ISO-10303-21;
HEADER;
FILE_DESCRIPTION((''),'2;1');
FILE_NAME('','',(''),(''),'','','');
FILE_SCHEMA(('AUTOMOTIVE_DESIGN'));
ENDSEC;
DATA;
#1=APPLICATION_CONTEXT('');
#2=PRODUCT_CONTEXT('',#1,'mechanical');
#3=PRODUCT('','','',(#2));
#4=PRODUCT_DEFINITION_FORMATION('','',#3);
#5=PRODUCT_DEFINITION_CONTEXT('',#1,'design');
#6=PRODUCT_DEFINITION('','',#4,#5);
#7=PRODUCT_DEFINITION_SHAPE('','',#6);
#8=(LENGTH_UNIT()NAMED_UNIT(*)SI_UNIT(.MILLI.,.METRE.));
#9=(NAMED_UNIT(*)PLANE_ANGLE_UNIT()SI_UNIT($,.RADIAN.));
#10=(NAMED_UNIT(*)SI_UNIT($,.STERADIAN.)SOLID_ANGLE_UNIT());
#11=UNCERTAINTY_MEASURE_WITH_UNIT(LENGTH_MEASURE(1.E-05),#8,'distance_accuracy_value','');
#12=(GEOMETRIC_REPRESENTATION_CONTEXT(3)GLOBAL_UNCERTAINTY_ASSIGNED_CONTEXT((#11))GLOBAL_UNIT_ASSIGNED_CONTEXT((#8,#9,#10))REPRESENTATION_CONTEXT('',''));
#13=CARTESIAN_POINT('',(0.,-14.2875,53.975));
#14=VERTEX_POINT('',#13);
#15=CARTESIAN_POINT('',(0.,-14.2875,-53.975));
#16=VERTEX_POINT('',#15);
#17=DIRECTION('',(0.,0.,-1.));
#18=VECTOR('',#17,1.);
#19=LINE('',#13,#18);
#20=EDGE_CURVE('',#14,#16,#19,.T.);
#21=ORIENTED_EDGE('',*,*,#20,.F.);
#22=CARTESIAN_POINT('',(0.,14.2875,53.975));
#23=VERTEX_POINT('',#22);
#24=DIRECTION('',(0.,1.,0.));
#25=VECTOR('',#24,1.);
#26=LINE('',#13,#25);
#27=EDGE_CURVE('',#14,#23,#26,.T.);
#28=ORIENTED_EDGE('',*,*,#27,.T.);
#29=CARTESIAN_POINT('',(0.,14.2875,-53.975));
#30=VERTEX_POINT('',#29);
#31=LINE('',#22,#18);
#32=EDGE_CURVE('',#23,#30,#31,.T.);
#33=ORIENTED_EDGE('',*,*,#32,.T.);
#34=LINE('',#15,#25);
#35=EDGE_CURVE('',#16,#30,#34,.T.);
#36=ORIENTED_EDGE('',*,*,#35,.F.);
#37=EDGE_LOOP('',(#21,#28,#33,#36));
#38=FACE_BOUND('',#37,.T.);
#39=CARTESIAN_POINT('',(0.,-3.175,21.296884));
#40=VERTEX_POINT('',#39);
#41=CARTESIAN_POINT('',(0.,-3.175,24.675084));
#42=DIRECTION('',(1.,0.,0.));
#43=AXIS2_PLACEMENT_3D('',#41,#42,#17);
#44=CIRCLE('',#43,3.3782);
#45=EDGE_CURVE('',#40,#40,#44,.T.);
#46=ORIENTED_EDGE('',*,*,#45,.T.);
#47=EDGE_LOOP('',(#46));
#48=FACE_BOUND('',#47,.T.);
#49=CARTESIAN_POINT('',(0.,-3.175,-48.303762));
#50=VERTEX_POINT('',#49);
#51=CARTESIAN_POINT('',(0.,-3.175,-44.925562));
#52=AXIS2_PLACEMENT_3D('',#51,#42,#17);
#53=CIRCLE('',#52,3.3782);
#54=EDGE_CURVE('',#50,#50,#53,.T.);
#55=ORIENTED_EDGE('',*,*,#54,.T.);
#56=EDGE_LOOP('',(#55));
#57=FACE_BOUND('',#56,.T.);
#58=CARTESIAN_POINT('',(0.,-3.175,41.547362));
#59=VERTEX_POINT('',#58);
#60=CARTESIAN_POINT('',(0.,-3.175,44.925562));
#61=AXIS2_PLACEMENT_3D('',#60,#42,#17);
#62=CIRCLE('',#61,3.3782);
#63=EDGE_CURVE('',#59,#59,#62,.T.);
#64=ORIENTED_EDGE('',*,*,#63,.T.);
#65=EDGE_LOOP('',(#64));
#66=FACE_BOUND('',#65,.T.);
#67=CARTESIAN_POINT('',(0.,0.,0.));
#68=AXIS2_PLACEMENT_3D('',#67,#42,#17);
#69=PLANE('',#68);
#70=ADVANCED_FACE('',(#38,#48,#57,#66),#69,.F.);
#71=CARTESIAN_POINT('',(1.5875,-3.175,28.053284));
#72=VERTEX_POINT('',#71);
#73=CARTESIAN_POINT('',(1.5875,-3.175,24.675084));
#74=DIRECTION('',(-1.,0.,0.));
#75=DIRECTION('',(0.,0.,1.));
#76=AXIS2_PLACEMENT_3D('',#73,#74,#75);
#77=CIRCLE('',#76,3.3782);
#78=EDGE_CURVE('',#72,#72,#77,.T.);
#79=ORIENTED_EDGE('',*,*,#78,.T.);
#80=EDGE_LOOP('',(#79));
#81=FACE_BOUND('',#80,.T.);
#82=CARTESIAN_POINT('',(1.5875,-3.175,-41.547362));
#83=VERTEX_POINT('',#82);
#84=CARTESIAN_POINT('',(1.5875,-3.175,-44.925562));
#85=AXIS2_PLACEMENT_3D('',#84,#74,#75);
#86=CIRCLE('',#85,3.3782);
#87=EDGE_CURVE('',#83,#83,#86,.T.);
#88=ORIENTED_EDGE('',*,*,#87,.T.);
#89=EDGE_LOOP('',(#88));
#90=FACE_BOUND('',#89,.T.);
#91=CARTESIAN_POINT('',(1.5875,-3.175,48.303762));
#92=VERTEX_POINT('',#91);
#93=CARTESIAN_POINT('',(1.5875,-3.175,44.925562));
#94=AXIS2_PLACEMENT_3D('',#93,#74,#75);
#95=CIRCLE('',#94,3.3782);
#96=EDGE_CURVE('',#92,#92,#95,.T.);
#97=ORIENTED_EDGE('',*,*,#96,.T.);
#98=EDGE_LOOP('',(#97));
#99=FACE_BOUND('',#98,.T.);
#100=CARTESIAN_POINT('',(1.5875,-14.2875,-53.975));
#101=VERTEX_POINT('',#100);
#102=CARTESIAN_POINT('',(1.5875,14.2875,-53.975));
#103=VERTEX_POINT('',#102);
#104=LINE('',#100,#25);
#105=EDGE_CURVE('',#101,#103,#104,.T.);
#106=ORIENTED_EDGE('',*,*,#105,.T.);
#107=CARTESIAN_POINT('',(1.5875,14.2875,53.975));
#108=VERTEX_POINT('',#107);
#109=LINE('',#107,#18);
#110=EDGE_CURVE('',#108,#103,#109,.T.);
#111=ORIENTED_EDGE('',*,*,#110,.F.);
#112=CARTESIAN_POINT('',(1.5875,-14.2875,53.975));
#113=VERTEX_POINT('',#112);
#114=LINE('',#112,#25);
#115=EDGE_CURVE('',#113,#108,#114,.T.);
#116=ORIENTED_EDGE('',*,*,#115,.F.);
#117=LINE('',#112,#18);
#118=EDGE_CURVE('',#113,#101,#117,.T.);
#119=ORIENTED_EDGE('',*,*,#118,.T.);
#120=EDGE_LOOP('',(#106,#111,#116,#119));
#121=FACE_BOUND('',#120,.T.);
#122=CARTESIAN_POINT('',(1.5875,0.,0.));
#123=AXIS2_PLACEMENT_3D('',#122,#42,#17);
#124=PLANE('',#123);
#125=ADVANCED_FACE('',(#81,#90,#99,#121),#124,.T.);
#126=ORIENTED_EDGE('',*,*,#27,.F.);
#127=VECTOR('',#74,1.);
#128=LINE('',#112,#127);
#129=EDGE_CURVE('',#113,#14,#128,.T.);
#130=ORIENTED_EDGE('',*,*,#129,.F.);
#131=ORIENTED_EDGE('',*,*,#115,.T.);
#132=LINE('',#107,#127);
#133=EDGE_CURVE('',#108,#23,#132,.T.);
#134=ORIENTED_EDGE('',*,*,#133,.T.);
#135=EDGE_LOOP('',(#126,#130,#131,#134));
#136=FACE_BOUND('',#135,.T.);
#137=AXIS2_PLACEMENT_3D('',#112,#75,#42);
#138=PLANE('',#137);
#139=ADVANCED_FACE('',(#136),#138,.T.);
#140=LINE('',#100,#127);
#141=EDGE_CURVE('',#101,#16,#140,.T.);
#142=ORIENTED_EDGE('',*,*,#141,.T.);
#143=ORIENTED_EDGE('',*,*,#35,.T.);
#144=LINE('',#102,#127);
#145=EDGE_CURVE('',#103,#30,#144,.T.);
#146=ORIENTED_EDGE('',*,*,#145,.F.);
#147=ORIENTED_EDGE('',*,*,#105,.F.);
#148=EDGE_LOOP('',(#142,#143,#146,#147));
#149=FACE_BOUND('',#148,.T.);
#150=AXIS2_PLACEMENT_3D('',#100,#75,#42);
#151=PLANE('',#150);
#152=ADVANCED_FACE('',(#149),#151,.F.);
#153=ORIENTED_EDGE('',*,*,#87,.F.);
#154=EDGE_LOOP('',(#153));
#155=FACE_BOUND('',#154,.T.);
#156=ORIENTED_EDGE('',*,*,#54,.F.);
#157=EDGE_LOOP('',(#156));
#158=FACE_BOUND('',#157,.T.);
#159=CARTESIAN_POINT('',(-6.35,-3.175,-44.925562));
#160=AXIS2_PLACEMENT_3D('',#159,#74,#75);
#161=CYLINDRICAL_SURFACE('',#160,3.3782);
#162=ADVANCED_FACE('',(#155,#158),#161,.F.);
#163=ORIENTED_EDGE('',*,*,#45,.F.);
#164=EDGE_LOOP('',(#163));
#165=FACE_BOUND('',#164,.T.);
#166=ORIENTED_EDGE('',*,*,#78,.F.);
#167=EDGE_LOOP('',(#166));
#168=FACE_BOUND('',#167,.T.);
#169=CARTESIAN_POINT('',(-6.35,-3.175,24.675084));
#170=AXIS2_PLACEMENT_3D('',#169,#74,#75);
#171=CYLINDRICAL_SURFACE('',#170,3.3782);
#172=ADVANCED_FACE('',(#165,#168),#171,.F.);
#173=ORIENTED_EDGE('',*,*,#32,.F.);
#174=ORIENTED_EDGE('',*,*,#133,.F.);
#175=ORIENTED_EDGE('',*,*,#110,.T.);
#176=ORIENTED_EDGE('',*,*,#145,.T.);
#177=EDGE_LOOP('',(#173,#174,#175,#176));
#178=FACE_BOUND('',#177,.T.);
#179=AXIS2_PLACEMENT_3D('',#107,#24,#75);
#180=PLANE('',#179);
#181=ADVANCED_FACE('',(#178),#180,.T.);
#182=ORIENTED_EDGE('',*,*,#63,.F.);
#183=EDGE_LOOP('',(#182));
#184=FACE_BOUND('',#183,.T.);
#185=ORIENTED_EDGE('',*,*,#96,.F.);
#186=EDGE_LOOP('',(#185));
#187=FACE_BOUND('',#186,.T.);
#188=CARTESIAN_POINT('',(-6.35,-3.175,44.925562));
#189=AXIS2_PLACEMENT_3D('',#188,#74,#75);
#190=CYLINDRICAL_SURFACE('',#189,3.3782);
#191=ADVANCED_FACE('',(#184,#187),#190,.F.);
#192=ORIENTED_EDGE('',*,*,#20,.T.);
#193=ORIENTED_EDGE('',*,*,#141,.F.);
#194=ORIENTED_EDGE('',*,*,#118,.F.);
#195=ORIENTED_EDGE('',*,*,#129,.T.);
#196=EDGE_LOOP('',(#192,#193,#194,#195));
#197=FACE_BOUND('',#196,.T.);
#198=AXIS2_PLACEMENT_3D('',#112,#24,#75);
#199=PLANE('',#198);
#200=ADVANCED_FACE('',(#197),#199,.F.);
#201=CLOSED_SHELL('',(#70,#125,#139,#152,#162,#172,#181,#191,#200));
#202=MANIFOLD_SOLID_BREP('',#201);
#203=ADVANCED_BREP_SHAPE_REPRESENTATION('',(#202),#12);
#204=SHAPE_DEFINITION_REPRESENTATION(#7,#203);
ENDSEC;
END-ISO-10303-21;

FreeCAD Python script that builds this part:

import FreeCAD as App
import Part
import Sketcher

V = App.Vector
Q = App.Units.Quantity

doc = App.newDocument("Part")
params = doc.addObject("Spreadsheet::Sheet", "Params")
for row, (alias, value) in enumerate([
    ("sketch1_height", "4.25 in"),
    ("sketch1_width", "1.125 in"),
    ("pad1_length", "0.0625 in"),
    ("sketch2_diameter", "0.266 in"),
    ("hole_diameter", "0.266 in"),
], start=1):
    params.set(f"A{row}", alias)
    params.set(f"B{row}", "=" + value)
    params.setAlias(f"B{row}", alias)

body = doc.addObject("PartDesign::Body", "Body")

sketch1 = body.newObject("Sketcher::SketchObject", "Sketch")
sketch1.AttachmentSupport = (doc.getObject("YZ_Plane"), [""])
sketch1.MapMode = "FlatFace"
sketch1.addGeometry([
    Part.LineSegment(V(14, 54, 0), V(-14, 54, 0)),
    Part.LineSegment(V(-14, 54, 0), V(-14, -54, 0)),
    Part.LineSegment(V(-14, -54, 0), V(14, -54, 0)),
    Part.LineSegment(V(14, -54, 0), V(14, 54, 0)),
], False)
sketch1.addConstraint([
    Sketcher.Constraint("Coincident", 0, 2, 1, 1),
    Sketcher.Constraint("Coincident", 1, 2, 2, 1),
    Sketcher.Constraint("Coincident", 2, 2, 3, 1),
    Sketcher.Constraint("Coincident", 3, 2, 0, 1),
    Sketcher.Constraint("Horizontal", 0),
    Sketcher.Constraint("Vertical", 1),
    Sketcher.Constraint("Horizontal", 2),
    Sketcher.Constraint("Vertical", 3),
    Sketcher.Constraint("Symmetric", 0, 2, 2, 2, -1, 1),
    Sketcher.Constraint("DistanceY", 1, 2, 1, 1, Q("4.25 in")),
    Sketcher.Constraint("DistanceX", 0, 2, 0, 1, Q("1.125 in")),
])
sketch1.setExpression("Constraints[9]", "Params.sketch1_height")
sketch1.setExpression("Constraints[10]", "Params.sketch1_width")
pad1 = body.newObject("PartDesign::Pad", "Pad")
pad1.Profile = sketch1
pad1.setExpression("Length", "Params.pad1_length")

sketch2 = body.newObject("Sketcher::SketchObject", "Sketch001")
sketch2.AttachmentSupport = (doc.getObject("YZ_Plane"), [""])
sketch2.MapMode = "FlatFace"
sketch2.AttachmentOffset = App.Placement(V(0, 0, -0.25 * 25.4), App.Rotation())
sketch2.addGeometry([
    Part.Circle(V(-3.2, 24.7, 0), V(0, 0, 1), 3.4),
    Part.Circle(V(-3.2, 44.9, 0), V(0, 0, 1), 3.4),
    Part.Circle(V(-3.2, -44.9, 0), V(0, 0, 1), 3.4),
], False)
sketch2.addConstraint([
    Sketcher.Constraint("Equal", 0, 1),
    Sketcher.Constraint("Equal", 1, 2),
    Sketcher.Constraint("Symmetric", 1, 3, 2, 3, -1),
    Sketcher.Constraint("Vertical", 0, 3, 1, 3),
    Sketcher.Constraint("Diameter", 0, Q("0.266 in")),
    Sketcher.Constraint("DistanceX", 0, 3, -1, 1, Q("0.125 in")),
    Sketcher.Constraint("DistanceY", -1, 1, 1, 3, 44.925562),
    Sketcher.Constraint("DistanceY", -1, 1, 0, 3, 24.675084),
])
sketch2.setExpression("Constraints[4]", "Params.sketch2_diameter")
doc.recompute()
hole = body.newObject("PartDesign::Hole", "Hole")
hole.Profile = sketch2
hole.ThreadType = "None"
hole.setExpression("Diameter", "Params.hole_diameter")
hole.DepthType = "ThroughAll"
hole.Reversed = True

doc.recompute()
